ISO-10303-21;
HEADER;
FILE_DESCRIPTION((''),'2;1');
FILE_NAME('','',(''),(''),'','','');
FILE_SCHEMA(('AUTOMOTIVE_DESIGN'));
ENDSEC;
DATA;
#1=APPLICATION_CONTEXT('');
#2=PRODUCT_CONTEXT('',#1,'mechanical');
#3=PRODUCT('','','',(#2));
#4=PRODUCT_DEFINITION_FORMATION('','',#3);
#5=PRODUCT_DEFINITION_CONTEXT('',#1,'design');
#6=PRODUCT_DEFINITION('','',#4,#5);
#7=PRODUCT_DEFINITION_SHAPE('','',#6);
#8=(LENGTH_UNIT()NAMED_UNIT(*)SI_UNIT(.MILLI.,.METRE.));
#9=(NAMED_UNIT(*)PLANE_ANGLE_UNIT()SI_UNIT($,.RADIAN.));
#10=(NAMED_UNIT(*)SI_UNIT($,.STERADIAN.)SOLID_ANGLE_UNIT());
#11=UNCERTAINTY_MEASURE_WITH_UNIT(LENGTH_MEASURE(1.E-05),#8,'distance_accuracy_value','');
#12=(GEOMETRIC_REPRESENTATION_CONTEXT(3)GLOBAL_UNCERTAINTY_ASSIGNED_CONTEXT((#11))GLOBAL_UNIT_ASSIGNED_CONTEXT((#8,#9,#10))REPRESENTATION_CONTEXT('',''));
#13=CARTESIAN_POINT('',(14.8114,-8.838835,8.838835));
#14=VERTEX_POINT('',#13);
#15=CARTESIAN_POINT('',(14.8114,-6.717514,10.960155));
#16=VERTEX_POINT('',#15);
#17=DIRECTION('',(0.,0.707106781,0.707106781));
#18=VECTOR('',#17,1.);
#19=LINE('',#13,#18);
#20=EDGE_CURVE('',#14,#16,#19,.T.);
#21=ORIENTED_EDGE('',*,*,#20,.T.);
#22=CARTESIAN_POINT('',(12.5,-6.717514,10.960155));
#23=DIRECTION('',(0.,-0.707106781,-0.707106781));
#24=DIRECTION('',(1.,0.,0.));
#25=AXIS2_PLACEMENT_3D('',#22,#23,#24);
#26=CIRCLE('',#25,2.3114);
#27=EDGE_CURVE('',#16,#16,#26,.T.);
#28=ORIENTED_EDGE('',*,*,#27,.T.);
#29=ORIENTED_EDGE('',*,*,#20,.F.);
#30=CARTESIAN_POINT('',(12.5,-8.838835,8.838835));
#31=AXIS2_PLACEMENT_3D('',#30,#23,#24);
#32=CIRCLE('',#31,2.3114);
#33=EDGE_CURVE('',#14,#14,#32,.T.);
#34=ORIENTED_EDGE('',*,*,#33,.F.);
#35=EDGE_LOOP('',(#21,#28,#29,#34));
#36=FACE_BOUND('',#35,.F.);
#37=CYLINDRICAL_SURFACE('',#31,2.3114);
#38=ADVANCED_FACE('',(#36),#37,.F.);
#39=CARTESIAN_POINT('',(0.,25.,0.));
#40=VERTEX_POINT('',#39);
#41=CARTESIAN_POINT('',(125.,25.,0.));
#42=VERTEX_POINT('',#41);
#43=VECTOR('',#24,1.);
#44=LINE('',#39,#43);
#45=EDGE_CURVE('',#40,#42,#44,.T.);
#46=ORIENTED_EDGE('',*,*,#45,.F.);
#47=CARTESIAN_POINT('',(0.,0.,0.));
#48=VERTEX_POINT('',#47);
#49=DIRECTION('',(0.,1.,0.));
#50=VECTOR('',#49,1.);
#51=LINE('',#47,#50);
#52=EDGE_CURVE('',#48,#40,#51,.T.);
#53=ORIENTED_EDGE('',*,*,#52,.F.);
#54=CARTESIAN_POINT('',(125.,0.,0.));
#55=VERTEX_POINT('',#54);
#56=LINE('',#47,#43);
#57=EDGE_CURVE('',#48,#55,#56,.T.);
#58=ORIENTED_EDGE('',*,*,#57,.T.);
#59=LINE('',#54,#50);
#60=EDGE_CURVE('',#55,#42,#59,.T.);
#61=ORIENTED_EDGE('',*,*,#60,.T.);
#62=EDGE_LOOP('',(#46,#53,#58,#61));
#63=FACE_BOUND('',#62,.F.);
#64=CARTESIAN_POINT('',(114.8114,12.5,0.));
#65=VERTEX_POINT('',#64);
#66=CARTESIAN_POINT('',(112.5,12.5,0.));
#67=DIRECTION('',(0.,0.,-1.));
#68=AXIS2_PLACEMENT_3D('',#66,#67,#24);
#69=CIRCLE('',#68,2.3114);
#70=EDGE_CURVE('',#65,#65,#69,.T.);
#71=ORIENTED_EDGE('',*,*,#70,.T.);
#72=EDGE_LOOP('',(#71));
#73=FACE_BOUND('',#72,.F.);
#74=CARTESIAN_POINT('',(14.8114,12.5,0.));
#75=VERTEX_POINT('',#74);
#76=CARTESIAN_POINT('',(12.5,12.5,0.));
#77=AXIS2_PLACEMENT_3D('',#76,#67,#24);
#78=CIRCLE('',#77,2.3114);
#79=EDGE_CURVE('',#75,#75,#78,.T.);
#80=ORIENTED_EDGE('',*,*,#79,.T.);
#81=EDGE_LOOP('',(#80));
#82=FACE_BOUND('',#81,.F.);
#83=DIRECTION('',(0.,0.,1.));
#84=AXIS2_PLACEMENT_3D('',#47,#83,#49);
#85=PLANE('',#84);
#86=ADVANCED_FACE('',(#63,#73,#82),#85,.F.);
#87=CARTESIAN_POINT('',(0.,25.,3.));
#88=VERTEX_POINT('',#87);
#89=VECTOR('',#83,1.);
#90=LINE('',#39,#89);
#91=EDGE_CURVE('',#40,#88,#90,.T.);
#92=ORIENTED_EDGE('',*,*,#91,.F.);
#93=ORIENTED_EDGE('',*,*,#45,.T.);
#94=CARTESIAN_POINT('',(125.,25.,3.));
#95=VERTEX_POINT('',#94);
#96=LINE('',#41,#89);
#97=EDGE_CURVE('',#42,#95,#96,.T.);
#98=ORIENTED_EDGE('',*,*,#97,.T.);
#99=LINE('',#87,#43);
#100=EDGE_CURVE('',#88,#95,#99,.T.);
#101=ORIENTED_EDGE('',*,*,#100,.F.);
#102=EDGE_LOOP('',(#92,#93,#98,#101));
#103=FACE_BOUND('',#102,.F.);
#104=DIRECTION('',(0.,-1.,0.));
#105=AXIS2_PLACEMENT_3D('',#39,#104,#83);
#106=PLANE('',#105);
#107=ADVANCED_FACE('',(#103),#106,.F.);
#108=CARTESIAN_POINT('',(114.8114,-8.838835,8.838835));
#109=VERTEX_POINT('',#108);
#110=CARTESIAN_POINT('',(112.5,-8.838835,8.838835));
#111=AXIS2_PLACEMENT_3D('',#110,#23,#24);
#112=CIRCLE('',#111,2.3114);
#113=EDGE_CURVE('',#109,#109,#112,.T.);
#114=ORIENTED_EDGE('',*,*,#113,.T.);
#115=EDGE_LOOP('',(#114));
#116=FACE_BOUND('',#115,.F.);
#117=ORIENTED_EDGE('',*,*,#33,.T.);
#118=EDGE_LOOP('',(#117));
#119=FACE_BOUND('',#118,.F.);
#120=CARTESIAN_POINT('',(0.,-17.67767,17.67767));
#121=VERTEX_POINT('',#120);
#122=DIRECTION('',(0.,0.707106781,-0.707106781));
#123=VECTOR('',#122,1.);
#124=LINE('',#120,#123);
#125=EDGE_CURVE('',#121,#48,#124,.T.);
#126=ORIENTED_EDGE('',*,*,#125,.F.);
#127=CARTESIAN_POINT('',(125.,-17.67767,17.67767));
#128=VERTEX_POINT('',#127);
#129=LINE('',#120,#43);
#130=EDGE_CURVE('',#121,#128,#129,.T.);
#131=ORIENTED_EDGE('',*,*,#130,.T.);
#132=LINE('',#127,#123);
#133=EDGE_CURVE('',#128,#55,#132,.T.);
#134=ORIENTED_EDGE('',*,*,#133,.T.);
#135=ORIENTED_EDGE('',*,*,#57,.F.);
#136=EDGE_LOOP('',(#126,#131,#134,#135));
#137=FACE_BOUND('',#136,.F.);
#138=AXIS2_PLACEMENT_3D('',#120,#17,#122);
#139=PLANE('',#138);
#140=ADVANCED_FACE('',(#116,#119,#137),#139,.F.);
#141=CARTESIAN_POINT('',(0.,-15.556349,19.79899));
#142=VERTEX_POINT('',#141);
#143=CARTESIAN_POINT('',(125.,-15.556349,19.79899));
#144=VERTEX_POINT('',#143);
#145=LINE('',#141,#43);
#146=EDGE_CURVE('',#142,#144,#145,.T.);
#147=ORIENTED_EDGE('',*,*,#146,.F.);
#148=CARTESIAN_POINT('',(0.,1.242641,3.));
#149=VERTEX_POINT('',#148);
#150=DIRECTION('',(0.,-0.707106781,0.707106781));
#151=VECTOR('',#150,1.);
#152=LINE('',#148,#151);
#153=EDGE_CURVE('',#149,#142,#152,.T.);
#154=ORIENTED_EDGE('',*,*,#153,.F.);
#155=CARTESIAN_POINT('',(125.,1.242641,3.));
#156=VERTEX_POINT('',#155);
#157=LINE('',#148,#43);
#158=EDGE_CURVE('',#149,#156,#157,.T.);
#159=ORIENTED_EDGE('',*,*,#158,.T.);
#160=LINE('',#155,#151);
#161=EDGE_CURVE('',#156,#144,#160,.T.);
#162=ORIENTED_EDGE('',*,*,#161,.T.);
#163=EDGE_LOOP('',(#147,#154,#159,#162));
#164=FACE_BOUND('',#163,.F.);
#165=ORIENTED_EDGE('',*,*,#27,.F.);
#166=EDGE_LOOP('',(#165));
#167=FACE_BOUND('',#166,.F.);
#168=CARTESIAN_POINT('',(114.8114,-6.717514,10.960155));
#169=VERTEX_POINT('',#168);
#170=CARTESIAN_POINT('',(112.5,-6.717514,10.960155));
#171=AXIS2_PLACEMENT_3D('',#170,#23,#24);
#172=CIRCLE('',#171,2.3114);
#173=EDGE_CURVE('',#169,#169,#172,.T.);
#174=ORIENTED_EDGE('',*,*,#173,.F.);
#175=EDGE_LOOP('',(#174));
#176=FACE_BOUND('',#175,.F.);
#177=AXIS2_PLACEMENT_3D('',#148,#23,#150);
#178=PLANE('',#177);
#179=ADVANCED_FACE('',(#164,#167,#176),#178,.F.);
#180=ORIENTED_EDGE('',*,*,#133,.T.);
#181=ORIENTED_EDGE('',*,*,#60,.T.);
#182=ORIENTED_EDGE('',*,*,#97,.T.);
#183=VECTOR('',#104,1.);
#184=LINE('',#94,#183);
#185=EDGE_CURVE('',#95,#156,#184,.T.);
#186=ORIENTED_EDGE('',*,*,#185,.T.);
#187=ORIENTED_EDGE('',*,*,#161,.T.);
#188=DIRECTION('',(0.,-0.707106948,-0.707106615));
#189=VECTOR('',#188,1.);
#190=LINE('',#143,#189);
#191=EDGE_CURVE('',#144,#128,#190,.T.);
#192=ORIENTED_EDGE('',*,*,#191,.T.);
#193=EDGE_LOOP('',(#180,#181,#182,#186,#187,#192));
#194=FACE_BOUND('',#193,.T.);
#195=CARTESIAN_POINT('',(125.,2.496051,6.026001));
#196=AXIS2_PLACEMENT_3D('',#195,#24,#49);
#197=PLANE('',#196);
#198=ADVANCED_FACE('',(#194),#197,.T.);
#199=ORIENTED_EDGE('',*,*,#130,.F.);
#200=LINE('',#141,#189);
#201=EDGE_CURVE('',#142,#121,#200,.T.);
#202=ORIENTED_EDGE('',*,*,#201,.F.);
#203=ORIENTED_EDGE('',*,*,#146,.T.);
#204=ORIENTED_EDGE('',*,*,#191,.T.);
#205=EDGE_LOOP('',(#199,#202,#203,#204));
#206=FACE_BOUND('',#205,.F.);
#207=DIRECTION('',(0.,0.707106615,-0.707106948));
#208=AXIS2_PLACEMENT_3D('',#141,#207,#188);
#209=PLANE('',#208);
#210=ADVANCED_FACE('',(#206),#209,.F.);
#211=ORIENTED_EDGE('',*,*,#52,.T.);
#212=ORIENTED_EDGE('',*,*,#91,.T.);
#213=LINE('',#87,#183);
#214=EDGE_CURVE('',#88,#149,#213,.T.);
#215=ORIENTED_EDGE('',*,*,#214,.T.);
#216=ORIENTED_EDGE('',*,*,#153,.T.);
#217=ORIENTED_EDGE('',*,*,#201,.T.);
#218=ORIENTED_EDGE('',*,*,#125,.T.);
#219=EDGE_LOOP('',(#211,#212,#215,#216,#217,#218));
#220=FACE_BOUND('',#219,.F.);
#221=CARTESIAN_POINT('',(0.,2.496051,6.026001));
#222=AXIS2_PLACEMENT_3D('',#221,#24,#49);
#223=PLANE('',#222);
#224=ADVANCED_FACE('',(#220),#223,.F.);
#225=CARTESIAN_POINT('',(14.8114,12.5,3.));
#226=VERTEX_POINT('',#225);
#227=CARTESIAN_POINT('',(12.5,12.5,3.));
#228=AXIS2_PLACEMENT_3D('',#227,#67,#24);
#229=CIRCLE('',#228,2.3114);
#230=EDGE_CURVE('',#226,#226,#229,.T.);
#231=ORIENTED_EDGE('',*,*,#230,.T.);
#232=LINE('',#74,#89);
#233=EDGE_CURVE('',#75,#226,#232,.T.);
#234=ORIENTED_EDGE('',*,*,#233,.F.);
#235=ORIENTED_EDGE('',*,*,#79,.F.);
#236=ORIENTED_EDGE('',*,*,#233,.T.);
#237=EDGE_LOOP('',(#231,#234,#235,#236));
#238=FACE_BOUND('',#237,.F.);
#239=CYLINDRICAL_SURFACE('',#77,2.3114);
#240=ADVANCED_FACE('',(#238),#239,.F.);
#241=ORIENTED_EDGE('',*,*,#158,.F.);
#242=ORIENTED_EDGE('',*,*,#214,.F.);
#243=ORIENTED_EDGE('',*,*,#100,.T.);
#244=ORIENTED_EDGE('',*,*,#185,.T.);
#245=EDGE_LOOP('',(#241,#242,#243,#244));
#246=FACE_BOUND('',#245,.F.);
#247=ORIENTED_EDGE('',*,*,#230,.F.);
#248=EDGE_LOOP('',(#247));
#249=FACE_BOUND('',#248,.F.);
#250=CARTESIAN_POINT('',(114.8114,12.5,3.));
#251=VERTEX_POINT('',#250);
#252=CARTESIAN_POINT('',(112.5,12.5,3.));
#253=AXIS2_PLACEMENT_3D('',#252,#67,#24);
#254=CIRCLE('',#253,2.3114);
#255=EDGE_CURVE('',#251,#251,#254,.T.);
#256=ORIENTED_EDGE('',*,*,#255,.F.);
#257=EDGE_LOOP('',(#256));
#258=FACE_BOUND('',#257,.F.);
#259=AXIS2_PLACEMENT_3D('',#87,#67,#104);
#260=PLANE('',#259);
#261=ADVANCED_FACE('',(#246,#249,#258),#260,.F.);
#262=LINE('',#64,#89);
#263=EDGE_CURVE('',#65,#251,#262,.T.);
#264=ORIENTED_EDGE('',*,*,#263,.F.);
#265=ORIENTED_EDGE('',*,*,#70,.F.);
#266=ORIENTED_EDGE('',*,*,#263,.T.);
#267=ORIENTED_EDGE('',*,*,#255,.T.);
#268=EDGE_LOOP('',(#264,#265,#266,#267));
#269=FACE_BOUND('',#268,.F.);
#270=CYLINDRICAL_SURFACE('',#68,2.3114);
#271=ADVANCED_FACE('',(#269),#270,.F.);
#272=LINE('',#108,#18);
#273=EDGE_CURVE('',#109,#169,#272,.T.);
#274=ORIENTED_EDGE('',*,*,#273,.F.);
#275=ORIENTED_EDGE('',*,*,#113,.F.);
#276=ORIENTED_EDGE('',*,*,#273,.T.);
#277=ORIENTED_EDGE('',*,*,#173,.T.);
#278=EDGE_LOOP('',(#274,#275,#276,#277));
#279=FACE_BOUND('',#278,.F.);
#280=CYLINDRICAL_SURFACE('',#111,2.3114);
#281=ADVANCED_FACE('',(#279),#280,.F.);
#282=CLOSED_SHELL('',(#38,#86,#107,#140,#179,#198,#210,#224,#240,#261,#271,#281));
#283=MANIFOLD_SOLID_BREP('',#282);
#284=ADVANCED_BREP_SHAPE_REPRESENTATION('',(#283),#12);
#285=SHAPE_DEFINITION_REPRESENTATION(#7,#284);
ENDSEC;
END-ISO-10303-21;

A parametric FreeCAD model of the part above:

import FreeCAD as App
import Part
import Sketcher
from FreeCAD import Vector
Q = App.Units.Quantity


def add_polygon(sketch, points):
    """Adds a closed chain of lines whose ends are joined by coincident constraints."""
    first, n = sketch.GeometryCount, len(points)
    for a, b in zip(points, points[1:] + points[:1]):
        sketch.addGeometry(Part.LineSegment(App.Vector(*a, 0), App.Vector(*b, 0)), False)
    for i in range(n):
        sketch.addConstraint(Sketcher.Constraint("Coincident", first + i, 2, first + (i + 1) % n, 1))

doc = App.newDocument("Part")
params = doc.addObject("Spreadsheet::Sheet", "Params")
for row, (alias, value) in enumerate([
    ("sketch1_width", "25 mm"),
    ("sketch1_height", "3 mm"),
    ("sketch1_length", "25.000001 mm"),
    ("sketch1_length2", "3 mm"),
    ("pad1_length", "125 mm"),
    ("pocket1_length", "25 mm"),
    ("pocket2_length", "25 mm"),
], start=1):
    params.set(f"A{row}", alias)
    params.set(f"B{row}", "=" + value)
    params.setAlias(f"B{row}", alias)

body = doc.addObject("PartDesign::Body", "Body")

sketch1 = body.newObject("Sketcher::SketchObject", "Sketch")
sketch1.AttachmentSupport = (doc.getObject("YZ_Plane"), [""])
sketch1.MapMode = "FlatFace"
add_polygon(sketch1, [(-17.7, 17.7), (0, 0), (25, 0), (25, 3), (1.2, 3), (-15.6, 19.8)])
sketch1.addConstraint([
    Sketcher.Constraint("Horizontal", 1),
    Sketcher.Constraint("Vertical", 2),
    Sketcher.Constraint("Horizontal", 3),
    Sketcher.Constraint("Coincident", 0, 2, -1, 1),
    Sketcher.Constraint("Parallel", 0, 4),
    Sketcher.Constraint("Perpendicular", 4, 5),
    Sketcher.Constraint("DistanceX", 1, 1, 1, 2, Q("25 mm")),
    Sketcher.Constraint("DistanceY", 2, 1, 2, 2, Q("3 mm")),
    Sketcher.Constraint("Angle", 0, Q("-45 deg")),
    Sketcher.Constraint("Distance", 0, Q("25.000001 mm")),
    Sketcher.Constraint("Distance", 5, Q("3 mm")),
])
sketch1.setExpression("Constraints[12]", "Params.sketch1_width")
sketch1.setExpression("Constraints[13]", "Params.sketch1_height")
sketch1.setExpression("Constraints[15]", "Params.sketch1_length")
sketch1.setExpression("Constraints[16]", "Params.sketch1_length2")
pad1 = body.newObject("PartDesign::Pad", "Pad")
pad1.Profile = sketch1
pad1.setExpression("Length", "Params.pad1_length")

sketch2 = body.newObject("Sketcher::SketchObject", "Sketch001")
sketch2.AttachmentSupport = (doc.getObject("XY_Plane"), [""])
sketch2.MapMode = "FlatFace"
sketch2.addGeometry([
    Part.Circle(Vector(12.5, 12.5, 0), Vector(0, 0, 1), 2.3),
    Part.Circle(Vector(112.5, 12.5, 0), Vector(0, 0, 1), 2.3),
], False)
sketch2.addConstraint([
    Sketcher.Constraint("Equal", 0, 1),
    Sketcher.Constraint("Horizontal", 0, 3, 1, 3),
    Sketcher.Constraint("DistanceX", 0, 3, 1, 3, Q("100 mm")),
    Sketcher.Constraint("Diameter", 0, Q("4.6228 mm")),
    Sketcher.Constraint("DistanceX", -1, 1, 0, 3, Q("12.5 mm")),
    Sketcher.Constraint("DistanceY", -1, 1, 0, 3, Q("12.5 mm")),
])
pocket1 = body.newObject("PartDesign::Pocket", "Pocket")
pocket1.Profile = sketch2
pocket1.setExpression("Length", "Params.pocket1_length")
pocket1.Reversed = True

sketch3 = body.newObject("Sketcher::SketchObject", "Sketch002")
sketch3.Placement = App.Placement(Vector(0, 0, 0), App.Rotation(Vector(1, 0, 0), Vector(0, -0.707106781, 0.707106781), Vector(0, -0.707106781, -0.707106781), "ZXY"))
sketch3.addGeometry([
    Part.Circle(Vector(12.5, 12.5, 0), Vector(0, 0, 1), 2.3),
    Part.Circle(Vector(112.5, 12.5, 0), Vector(0, 0, 1), 2.3),
], False)
sketch3.addConstraint([
    Sketcher.Constraint("Equal", 0, 1),
    Sketcher.Constraint("Horizontal", 0, 3, 1, 3),
    Sketcher.Constraint("DistanceX", 0, 3, 1, 3, Q("100 mm")),
    Sketcher.Constraint("Diameter", 0, Q("4.6228 mm")),
    Sketcher.Constraint("DistanceX", -1, 1, 0, 3, Q("12.5 mm")),
    Sketcher.Constraint("DistanceY", -1, 1, 0, 3, Q("12.5 mm")),
])
pocket2 = body.newObject("PartDesign::Pocket", "Pocket001")
pocket2.Profile = sketch3
pocket2.setExpression("Length", "Params.pocket2_length")

doc.recompute()
